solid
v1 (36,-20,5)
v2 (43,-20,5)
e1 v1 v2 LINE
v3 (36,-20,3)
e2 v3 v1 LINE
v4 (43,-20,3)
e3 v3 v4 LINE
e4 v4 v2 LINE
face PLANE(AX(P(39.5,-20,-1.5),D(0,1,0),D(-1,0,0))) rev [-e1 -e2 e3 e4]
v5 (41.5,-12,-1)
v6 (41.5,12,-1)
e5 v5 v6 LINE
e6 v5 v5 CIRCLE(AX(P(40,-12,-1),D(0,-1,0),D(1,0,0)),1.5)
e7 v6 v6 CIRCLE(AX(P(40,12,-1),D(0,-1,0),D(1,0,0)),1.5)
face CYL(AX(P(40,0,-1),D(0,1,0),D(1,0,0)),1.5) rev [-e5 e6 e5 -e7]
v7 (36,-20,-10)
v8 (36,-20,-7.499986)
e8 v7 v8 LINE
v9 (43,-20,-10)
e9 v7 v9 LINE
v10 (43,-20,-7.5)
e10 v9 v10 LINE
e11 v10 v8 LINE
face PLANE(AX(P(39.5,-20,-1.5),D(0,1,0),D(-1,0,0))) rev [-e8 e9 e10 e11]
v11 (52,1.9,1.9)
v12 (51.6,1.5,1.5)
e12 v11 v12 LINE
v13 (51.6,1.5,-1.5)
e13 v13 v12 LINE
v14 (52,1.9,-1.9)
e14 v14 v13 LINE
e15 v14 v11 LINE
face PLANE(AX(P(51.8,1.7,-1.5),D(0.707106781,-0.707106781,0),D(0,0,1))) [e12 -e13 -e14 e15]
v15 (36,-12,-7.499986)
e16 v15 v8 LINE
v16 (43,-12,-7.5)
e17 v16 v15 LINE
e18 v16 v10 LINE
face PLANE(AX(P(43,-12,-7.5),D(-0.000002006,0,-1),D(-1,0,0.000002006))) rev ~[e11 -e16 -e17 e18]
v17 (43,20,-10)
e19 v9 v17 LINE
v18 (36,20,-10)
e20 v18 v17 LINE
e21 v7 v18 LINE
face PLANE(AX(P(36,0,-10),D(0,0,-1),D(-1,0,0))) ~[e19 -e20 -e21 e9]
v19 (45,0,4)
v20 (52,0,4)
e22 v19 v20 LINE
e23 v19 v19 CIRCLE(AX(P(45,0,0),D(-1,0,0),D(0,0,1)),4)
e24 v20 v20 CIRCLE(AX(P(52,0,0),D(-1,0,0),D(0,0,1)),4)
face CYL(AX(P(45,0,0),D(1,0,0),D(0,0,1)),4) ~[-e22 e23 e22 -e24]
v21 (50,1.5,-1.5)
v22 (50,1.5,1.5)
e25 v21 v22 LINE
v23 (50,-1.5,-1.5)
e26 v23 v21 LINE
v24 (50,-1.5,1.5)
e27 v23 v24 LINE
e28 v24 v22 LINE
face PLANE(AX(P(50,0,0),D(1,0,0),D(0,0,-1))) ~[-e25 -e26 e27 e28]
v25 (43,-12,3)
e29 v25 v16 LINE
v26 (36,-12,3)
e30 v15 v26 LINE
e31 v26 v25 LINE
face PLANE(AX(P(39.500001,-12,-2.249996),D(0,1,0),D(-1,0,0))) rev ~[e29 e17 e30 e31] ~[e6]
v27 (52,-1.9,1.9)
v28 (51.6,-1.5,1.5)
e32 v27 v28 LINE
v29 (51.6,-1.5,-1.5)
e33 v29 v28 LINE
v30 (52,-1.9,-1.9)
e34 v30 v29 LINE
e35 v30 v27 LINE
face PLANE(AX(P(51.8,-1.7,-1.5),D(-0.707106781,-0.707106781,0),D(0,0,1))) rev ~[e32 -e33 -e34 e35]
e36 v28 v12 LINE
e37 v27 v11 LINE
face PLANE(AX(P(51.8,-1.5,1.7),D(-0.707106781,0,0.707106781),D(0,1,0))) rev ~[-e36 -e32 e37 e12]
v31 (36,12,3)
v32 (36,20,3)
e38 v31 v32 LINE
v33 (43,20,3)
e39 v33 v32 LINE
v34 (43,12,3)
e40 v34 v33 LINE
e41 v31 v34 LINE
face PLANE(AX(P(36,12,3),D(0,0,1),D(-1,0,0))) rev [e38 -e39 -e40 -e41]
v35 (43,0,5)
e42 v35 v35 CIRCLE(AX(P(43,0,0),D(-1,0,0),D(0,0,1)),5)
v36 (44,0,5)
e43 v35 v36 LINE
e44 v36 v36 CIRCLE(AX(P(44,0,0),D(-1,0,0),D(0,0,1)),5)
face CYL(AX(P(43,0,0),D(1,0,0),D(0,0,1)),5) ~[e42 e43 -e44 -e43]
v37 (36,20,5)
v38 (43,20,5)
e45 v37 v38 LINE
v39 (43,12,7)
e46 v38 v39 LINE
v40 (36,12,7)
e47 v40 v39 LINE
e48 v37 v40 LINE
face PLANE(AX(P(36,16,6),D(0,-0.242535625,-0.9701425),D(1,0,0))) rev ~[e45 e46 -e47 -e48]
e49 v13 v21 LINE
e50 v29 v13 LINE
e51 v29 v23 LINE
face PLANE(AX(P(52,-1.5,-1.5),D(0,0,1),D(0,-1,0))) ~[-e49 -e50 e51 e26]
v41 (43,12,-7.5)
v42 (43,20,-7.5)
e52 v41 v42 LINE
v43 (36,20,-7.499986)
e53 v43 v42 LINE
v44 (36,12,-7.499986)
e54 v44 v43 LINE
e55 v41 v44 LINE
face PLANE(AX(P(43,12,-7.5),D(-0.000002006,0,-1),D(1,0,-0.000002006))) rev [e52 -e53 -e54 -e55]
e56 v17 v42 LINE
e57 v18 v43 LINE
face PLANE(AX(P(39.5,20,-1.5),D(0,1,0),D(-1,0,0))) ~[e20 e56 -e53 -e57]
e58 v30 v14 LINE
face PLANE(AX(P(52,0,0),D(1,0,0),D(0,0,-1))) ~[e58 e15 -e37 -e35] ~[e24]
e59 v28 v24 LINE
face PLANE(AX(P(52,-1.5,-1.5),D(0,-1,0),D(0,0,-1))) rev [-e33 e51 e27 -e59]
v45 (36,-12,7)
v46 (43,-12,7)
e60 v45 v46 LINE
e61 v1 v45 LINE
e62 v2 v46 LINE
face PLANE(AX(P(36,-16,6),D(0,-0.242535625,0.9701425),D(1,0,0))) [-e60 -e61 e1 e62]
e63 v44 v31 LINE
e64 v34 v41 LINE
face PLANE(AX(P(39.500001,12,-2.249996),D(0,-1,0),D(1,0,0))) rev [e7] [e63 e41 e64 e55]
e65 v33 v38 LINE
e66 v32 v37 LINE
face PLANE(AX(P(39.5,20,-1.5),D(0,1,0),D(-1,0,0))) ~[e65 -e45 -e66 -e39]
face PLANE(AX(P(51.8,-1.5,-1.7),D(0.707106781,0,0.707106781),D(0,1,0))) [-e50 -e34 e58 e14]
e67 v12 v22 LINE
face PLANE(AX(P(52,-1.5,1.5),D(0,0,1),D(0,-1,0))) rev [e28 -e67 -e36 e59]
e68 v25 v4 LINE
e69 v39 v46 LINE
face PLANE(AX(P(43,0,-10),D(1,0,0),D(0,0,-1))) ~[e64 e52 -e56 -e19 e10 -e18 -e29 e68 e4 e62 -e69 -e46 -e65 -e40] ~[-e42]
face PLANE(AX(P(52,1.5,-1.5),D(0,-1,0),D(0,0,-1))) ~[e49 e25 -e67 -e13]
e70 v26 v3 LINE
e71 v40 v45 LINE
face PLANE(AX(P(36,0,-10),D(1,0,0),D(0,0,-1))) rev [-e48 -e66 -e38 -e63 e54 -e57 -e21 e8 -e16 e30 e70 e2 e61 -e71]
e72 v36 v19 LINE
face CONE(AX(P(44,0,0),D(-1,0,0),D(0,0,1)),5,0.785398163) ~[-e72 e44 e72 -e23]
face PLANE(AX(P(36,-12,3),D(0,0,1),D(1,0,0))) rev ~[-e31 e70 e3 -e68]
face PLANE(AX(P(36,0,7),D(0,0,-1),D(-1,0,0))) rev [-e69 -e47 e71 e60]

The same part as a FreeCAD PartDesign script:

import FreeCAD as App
import Part
import Sketcher
from FreeCAD import Vector
Q = App.Units.Quantity


def edges_at(feature, points):
    """Names of the edges that pass closest to the given points."""
    edges = feature.Shape.Edges
    near = lambda p: min(range(len(edges)), key=lambda i: edges[i].distToShape(Part.Vertex(*p))[0])
    return sorted({f"Edge{near(p) + 1}" for p in points})


def add_polygon(sketch, points):
    """Adds a closed chain of lines whose ends are joined by coincident constraints."""
    first, n = sketch.GeometryCount, len(points)
    for a, b in zip(points, points[1:] + points[:1]):
        sketch.addGeometry(Part.LineSegment(App.Vector(*a, 0), App.Vector(*b, 0)), False)
    for i in range(n):
        sketch.addConstraint(Sketcher.Constraint("Coincident", first + i, 2, first + (i + 1) % n, 1))

doc = App.newDocument("Part")
body = doc.addObject("PartDesign::Body", "Body")

sketch1 = doc.addObject("Sketcher::SketchObject", "Sketch")
body.addObject(sketch1)
sketch1.AttachmentSupport = (doc.XZ_Plane, [""])
sketch1.MapMode = "FlatFace"
add_polygon(sketch1, [(36, 7), (36, -10), (43, -10), (43, 7)])
sketch1.addConstraint(Sketcher.Constraint("Vertical", 0))
sketch1.addConstraint(Sketcher.Constraint("Horizontal", 1))
sketch1.addConstraint(Sketcher.Constraint("Vertical", 2))
sketch1.addConstraint(Sketcher.Constraint("Horizontal", 3))
sketch1.addConstraint(Sketcher.Constraint("DistanceX", 1, 1, 1, 2, Q("7 mm")))
sketch1.addConstraint(Sketcher.Constraint("DistanceY", 0, 2, 0, 1, Q("17 mm")))
sketch1.addConstraint(Sketcher.Constraint("DistanceX", -1, 1, 0, 2, Q("36 mm")))
sketch1.addConstraint(Sketcher.Constraint("DistanceY", 0, 2, -1, 1, Q("10 mm")))
pad1 = doc.addObject("PartDesign::Pad", "Pad")
body.addObject(pad1)
pad1.Profile = sketch1
pad1.Length = 40
pad1.Midplane = True

sketch2 = doc.addObject("Sketcher::SketchObject", "Sketch001")
body.addObject(sketch2)
sketch2.AttachmentSupport = (doc.XZ_Plane, [""])
sketch2.MapMode = "FlatFace"
sketch2.addGeometry(Part.Circle(Vector(40, -1, 0), Vector(0, 0, 1), 1.5), False)
sketch2.addConstraint(Sketcher.Constraint("Diameter", 0, Q("3 mm")))
sketch2.addConstraint(Sketcher.Constraint("DistanceX", -1, 1, 0, 3, Q("40 mm")))
sketch2.addConstraint(Sketcher.Constraint("DistanceY", 0, 3, -1, 1, Q("1 mm")))
pocket1 = doc.addObject("PartDesign::Pocket", "Pocket")
body.addObject(pocket1)
pocket1.Profile = sketch2
pocket1.Length = 40
pocket1.Midplane = True

sketch3 = doc.addObject("Sketcher::SketchObject", "Sketch002")
body.addObject(sketch3)
sketch3.AttachmentSupport = (doc.XZ_Plane, [""])
sketch3.MapMode = "FlatFace"
add_polygon(sketch3, [(43, 0), (52, 0), (52, 4), (45, 4), (44, 5), (43, 5)])
sketch3.addConstraint(Sketcher.Constraint("Horizontal", 0))
sketch3.addConstraint(Sketcher.Constraint("Vertical", 1))
sketch3.addConstraint(Sketcher.Constraint("Horizontal", 2))
sketch3.addConstraint(Sketcher.Constraint("Horizontal", 4))
sketch3.addConstraint(Sketcher.Constraint("Vertical", 5))
sketch3.addConstraint(Sketcher.Constraint("PointOnObject", 0, 2, -1))
sketch3.addConstraint(Sketcher.Constraint("DistanceX", 0, 1, 0, 2, Q("9 mm")))
sketch3.addConstraint(Sketcher.Constraint("DistanceX", 2, 2, 2, 1, Q("7 mm")))
sketch3.addConstraint(Sketcher.Constraint("DistanceX", 4, 2, 4, 1, Q("1 mm")))
sketch3.addConstraint(Sketcher.Constraint("DistanceY", 1, 1, 1, 2, Q("4 mm")))
sketch3.addConstraint(Sketcher.Constraint("DistanceY", 5, 2, 5, 1, Q("5 mm")))
sketch3.addConstraint(Sketcher.Constraint("DistanceX", -1, 1, 0, 2, Q("52 mm")))
revolution = doc.addObject("PartDesign::Revolution", "Revolution")
body.addObject(revolution)
revolution.Profile = sketch3
revolution.ReferenceAxis = (sketch3, ["H_Axis"])
revolution.Angle = 360

sketch4 = doc.addObject("Sketcher::SketchObject", "Sketch003")
body.addObject(sketch4)
sketch4.AttachmentSupport = (doc.XZ_Plane, [""])
sketch4.MapMode = "FlatFace"
sketch4.AttachmentOffset = App.Placement(Vector(0, 0, 12), App.Rotation())
add_polygon(sketch4, [(36, -7), (43, -8), (43, 3), (36, 3)])
sketch4.addConstraint(Sketcher.Constraint("Vertical", 1))
sketch4.addConstraint(Sketcher.Constraint("Horizontal", 2))
sketch4.addConstraint(Sketcher.Constraint("Vertical", 3))
sketch4.addConstraint(Sketcher.Constraint("DistanceX", 2, 2, 2, 1, Q("7 mm")))
sketch4.addConstraint(Sketcher.Constraint("DistanceY", 1, 1, 1, 2, Q("10.5 mm")))
sketch4.addConstraint(Sketcher.Constraint("DistanceX", -1, 1, 0, 2, Q("43 mm")))
sketch4.addConstraint(Sketcher.Constraint("DistanceY", -1, 1, 1, 2, Q("3 mm")))
sketch4.addConstraint(Sketcher.Constraint("DistanceY", 3, 2, 3, 1, Q("10.499986 mm")))
pocket2 = doc.addObject("PartDesign::Pocket", "Pocket001")
body.addObject(pocket2)
pocket2.Profile = sketch4
pocket2.Length = 10
pocket2.Reversed = True
doc.recompute()

mirrored = doc.addObject("PartDesign::Mirrored", "Mirrored")
body.addObject(mirrored)
mirrored.Originals = [pocket2]
mirrored.MirrorPlane = (doc.XZ_Plane, [""])
body.Tip = mirrored
doc.recompute()

chamfer = doc.addObject("PartDesign::Chamfer", "Chamfer")
body.addObject(chamfer)
chamfer.Base = (mirrored, edges_at(mirrored, [(39.5, 20, 7)]))
chamfer.ChamferType = "Two distances"
chamfer.Size = 2
chamfer.Size2 = 8
doc.recompute()

chamfer2 = doc.addObject("PartDesign::Chamfer", "Chamfer001")
body.addObject(chamfer2)
chamfer2.Base = (chamfer, edges_at(chamfer, [(39.5, -20, 7)]))
chamfer2.ChamferType = "Two distances"
chamfer2.Size = 2
chamfer2.Size2 = 8
chamfer2.FlipDirection = True

sketch5 = doc.addObject("Sketcher::SketchObject", "Sketch004")
body.addObject(sketch5)
sketch5.AttachmentSupport = (doc.YZ_Plane, [""])
sketch5.MapMode = "FlatFace"
sketch5.AttachmentOffset = App.Placement(Vector(0, 0, 52), App.Rotation())
add_polygon(sketch5, [(-1.5, -1.5), (1.5, -1.5), (1.5, 1.5), (-1.5, 1.5)])
sketch5.addConstraint(Sketcher.Constraint("Horizontal", 0))
sketch5.addConstraint(Sketcher.Constraint("Vertical", 1))
sketch5.addConstraint(Sketcher.Constraint("Horizontal", 2))
sketch5.addConstraint(Sketcher.Constraint("Vertical", 3))
sketch5.addConstraint(Sketcher.Constraint("Symmetric", 0, 2, 2, 2, -1, 1))
sketch5.addConstraint(Sketcher.Constraint("Equal", 2, 1))
sketch5.addConstraint(Sketcher.Constraint("DistanceX", 0, 1, 0, 2, Q("3 mm")))
pocket3 = doc.addObject("PartDesign::Pocket", "Pocket002")
body.addObject(pocket3)
pocket3.Profile = sketch5
pocket3.Length = 2
doc.recompute()

chamfer3 = doc.addObject("PartDesign::Chamfer", "Chamfer002")
body.addObject(chamfer3)
chamfer3.Base = (pocket3, edges_at(pocket3, [
    (52, 0, 1.5),
    (52, 1.5, 0),
    (52, 0, -1.5),
    (52, -1.5, 0),
]))
chamfer3.Size = 0.4
body2 = doc.addObject("PartDesign::Body", "Body001")
doc.recompute()

body.Placement = App.Placement(Vector(0, 0, 0), App.Rotation(Vector(0, 0, 1), 180))
boolean = doc.addObject("PartDesign::Boolean", "Boolean")
body2.addObject(boolean)
boolean.Type = "Fuse"
boolean.addObjects([body])
body3 = doc.addObject("PartDesign::Body", "Body002")
doc.recompute()

mirroring = doc.addObject("Part::Mirroring", "Mirroring")
mirroring.Source = body2
mirroring.Base = Vector(0, 0, 0)
mirroring.Normal = Vector(1, 0, 0)
body3.BaseFeature = mirroring
doc.recompute()
body2.Visibility = False
mirroring.Visibility = False

doc.recompute()
